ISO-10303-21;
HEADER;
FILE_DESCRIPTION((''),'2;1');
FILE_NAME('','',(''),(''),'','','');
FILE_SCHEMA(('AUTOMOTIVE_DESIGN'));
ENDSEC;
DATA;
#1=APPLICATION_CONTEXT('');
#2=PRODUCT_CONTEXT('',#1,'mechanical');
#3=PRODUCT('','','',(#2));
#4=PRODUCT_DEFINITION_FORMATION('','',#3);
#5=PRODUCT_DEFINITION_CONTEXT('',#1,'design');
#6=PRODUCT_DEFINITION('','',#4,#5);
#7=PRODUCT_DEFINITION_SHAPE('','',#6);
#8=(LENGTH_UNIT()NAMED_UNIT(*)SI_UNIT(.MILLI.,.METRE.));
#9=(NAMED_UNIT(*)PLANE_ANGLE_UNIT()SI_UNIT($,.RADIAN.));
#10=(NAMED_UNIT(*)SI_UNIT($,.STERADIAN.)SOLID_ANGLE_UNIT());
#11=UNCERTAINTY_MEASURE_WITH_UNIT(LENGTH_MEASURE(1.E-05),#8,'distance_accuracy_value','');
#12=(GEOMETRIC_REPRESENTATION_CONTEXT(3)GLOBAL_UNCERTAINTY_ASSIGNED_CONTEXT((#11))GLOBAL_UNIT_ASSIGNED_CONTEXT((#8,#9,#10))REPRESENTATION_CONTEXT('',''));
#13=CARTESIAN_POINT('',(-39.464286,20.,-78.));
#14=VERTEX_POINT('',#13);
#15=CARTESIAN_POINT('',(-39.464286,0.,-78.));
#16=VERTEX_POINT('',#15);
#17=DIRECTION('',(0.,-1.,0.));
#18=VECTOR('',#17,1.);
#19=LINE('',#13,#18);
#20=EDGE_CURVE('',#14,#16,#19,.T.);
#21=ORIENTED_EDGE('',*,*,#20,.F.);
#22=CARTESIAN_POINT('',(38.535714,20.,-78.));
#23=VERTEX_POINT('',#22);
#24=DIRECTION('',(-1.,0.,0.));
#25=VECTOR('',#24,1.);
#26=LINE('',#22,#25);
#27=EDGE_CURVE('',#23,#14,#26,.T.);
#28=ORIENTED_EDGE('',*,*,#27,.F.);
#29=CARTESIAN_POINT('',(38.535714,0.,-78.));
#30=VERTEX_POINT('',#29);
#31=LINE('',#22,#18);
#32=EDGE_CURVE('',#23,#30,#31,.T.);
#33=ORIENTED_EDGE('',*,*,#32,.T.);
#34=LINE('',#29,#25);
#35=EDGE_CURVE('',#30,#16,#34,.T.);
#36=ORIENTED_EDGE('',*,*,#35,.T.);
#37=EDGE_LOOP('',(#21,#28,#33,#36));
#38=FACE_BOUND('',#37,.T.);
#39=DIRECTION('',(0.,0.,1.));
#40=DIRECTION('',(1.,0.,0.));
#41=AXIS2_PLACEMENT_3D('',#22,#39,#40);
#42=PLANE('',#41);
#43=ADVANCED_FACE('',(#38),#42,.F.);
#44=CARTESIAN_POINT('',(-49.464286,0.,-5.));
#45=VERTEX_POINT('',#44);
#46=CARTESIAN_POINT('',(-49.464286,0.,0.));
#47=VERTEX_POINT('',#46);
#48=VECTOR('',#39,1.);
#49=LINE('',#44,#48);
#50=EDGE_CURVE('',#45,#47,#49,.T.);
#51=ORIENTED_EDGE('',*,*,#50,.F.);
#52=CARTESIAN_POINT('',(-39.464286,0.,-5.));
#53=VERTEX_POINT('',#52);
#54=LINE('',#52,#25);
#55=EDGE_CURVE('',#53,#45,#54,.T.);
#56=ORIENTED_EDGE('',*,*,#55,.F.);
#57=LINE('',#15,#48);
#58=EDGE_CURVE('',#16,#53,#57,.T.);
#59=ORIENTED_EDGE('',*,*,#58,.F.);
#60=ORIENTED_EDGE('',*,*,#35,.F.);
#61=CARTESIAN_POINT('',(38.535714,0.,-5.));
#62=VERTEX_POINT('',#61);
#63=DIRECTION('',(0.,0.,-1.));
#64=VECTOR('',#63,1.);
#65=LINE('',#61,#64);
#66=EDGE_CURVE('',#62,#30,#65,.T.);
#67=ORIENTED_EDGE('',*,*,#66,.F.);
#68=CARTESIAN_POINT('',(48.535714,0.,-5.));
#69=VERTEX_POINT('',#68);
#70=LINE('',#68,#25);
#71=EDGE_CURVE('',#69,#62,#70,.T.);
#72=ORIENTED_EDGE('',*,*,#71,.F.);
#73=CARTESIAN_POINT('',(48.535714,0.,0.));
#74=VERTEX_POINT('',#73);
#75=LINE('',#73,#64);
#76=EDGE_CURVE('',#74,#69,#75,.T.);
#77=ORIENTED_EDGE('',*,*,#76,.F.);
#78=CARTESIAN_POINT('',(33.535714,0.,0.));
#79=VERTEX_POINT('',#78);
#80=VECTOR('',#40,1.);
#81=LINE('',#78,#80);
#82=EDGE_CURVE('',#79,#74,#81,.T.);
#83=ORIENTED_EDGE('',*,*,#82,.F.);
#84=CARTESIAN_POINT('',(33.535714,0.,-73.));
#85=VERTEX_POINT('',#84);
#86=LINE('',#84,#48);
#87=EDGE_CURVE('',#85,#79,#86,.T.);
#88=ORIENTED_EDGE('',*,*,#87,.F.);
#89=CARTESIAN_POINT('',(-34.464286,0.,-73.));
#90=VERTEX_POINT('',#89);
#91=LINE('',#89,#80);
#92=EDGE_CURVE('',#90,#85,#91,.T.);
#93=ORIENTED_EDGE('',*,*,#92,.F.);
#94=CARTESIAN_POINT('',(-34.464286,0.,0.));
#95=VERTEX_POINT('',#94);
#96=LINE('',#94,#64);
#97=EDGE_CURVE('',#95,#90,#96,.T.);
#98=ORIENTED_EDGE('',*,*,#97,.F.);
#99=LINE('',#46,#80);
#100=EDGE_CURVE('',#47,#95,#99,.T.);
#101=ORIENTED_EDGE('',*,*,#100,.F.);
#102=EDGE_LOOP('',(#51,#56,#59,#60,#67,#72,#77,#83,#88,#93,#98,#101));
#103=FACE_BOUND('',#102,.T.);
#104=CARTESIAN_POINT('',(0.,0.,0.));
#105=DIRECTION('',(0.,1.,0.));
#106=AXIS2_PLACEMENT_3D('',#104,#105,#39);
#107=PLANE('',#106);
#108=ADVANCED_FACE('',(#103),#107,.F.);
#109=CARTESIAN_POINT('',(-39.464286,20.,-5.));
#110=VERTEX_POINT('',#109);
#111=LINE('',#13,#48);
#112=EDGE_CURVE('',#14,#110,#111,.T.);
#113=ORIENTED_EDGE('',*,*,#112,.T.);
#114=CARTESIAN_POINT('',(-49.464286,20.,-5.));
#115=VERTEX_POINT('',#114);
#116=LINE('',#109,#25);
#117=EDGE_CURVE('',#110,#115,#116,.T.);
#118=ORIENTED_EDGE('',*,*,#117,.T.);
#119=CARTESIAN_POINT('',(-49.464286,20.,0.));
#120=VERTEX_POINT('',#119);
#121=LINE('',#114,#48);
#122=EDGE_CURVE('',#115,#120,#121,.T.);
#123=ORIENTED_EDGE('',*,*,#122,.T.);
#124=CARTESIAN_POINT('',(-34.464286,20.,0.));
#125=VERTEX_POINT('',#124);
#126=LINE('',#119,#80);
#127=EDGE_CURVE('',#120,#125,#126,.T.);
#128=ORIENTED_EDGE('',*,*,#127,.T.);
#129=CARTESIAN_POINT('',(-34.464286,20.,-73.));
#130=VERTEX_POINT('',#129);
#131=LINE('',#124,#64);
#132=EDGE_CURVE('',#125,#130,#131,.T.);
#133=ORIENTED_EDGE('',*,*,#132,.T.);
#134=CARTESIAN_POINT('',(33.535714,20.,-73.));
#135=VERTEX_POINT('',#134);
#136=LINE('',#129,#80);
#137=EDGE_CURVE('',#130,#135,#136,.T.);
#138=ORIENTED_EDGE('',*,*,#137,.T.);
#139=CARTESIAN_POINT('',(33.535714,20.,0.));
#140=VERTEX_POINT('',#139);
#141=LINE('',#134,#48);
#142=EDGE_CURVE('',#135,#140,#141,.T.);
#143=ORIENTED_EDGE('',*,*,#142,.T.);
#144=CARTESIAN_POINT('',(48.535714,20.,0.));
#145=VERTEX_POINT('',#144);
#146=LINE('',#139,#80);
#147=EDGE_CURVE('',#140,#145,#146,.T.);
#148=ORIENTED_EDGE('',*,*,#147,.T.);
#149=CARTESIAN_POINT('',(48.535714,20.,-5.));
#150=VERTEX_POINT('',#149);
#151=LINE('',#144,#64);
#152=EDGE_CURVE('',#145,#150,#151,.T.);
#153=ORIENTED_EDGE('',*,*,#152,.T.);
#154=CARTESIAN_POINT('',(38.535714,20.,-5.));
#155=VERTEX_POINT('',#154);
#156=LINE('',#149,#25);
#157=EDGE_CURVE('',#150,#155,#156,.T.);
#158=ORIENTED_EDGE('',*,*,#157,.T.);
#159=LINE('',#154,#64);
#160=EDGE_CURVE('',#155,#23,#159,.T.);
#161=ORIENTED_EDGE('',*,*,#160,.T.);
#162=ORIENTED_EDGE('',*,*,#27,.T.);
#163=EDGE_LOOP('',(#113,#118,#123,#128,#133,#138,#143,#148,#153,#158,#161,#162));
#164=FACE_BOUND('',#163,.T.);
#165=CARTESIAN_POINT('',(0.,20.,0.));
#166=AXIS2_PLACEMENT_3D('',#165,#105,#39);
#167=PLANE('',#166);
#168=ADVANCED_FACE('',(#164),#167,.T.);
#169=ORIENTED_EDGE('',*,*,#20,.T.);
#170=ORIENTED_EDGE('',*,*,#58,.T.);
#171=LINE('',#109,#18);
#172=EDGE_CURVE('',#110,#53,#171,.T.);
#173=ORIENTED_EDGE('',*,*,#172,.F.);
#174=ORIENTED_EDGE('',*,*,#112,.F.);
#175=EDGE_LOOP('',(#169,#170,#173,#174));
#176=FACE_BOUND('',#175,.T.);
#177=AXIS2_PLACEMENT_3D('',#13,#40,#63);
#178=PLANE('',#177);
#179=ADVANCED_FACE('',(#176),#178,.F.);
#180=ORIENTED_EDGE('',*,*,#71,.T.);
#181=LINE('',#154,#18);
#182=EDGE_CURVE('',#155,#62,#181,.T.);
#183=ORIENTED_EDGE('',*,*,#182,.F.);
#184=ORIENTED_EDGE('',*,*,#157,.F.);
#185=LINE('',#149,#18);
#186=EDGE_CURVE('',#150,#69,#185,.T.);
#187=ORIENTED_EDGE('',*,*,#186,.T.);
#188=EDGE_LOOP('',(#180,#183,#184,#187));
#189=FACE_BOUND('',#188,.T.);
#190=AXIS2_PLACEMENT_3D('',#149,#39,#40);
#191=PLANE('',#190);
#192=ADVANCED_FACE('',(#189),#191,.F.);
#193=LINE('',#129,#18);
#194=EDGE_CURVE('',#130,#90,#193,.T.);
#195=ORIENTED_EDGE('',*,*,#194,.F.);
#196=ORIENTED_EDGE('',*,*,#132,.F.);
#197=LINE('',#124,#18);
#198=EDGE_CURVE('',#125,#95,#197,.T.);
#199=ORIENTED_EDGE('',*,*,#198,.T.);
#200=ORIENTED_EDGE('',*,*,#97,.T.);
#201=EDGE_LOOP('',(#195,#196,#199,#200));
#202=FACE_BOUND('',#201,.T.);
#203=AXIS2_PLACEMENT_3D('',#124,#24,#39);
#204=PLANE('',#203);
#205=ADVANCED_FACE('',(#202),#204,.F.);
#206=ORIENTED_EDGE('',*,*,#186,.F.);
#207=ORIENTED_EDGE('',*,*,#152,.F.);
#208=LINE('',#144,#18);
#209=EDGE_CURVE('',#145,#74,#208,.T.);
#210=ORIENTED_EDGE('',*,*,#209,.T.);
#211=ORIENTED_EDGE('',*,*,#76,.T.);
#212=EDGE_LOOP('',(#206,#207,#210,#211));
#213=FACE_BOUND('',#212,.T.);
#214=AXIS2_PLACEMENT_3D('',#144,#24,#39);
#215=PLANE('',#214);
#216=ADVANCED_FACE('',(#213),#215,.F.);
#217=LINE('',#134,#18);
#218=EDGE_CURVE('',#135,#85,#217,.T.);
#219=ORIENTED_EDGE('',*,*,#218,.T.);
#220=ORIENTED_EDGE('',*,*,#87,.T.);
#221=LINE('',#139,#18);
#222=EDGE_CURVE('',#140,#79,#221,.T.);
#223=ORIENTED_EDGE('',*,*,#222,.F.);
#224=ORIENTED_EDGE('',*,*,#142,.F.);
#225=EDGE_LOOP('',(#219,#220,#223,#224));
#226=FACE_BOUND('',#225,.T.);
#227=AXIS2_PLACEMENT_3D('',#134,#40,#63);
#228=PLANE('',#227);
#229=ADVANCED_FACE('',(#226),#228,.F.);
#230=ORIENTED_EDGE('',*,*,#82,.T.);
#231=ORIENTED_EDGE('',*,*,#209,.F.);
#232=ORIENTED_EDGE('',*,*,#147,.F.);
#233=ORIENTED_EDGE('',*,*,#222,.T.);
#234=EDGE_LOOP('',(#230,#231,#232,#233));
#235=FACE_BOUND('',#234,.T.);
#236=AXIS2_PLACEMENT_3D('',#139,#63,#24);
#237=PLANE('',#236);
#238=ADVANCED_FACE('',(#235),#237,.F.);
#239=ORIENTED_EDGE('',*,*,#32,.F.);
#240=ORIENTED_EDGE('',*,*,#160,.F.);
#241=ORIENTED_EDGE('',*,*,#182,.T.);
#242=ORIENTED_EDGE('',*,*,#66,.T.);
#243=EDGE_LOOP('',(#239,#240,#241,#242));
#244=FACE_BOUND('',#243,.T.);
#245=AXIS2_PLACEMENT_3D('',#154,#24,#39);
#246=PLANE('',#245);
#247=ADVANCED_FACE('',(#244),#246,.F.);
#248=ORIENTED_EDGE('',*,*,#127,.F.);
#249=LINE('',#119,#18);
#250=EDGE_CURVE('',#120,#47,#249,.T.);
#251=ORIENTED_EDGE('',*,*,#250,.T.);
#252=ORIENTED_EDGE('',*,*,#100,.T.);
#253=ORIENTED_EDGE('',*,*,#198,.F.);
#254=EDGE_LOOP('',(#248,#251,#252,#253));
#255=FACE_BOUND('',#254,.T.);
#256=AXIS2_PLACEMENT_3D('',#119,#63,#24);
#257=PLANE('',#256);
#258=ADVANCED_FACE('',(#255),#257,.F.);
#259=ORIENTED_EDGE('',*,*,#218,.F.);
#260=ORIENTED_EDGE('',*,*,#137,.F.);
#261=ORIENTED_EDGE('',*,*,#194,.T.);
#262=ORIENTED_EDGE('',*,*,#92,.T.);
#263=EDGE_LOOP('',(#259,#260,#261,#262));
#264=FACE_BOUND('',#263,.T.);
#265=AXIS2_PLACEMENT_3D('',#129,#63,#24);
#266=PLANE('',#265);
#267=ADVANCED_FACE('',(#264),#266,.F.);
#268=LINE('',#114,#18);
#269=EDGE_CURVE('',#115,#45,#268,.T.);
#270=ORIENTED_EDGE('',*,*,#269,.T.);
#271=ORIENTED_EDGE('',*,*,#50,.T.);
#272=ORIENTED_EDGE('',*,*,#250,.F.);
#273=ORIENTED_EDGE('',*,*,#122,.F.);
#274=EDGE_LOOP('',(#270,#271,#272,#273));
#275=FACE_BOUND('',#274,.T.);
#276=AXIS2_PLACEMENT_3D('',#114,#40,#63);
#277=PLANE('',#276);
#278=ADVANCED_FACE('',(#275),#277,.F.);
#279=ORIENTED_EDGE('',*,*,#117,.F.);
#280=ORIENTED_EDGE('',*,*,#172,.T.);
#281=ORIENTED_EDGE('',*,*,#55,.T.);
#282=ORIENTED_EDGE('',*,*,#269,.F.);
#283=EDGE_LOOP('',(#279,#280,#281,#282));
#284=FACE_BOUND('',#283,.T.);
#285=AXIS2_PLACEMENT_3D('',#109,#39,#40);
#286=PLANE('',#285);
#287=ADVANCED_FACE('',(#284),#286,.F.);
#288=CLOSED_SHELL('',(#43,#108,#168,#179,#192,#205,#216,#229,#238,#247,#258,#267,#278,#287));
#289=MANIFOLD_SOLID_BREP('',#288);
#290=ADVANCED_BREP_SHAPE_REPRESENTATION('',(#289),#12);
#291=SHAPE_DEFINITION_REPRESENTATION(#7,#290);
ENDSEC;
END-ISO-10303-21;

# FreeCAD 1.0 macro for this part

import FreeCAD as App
import Part
import Sketcher
from FreeCAD import Vector
Q = App.Units.Quantity


def add_polygon(sketch, points):
    """Adds a closed chain of lines whose ends are joined by coincident constraints."""
    first, n = sketch.GeometryCount, len(points)
    for a, b in zip(points, points[1:] + points[:1]):
        sketch.addGeometry(Part.LineSegment(App.Vector(*a, 0), App.Vector(*b, 0)), False)
    for i in range(n):
        sketch.addConstraint(Sketcher.Constraint("Coincident", first + i, 2, first + (i + 1) % n, 1))

doc = App.newDocument("Part")
body = doc.addObject("PartDesign::Body", "Body")

sketch1 = body.newObject("Sketcher::SketchObject", "Sketch")
sketch1.AttachmentSupport = (doc.getObject("XZ_Plane"), [""])
sketch1.MapMode = "FlatFace"
add_polygon(sketch1, [(-49, 0), (-34, 0), (-34, -73), (34, -73), (34, 0), (49, 0), (49, -5), (39, -5), (39, -78), (-39, -78), (-39, -5), (-49, -5)])
sketch1.addConstraint([
    Sketcher.Constraint("Horizontal", 0),
    Sketcher.Constraint("Vertical", 1),
    Sketcher.Constraint("Horizontal", 2),
    Sketcher.Constraint("Vertical", 3),
    Sketcher.Constraint("Horizontal", 4),
    Sketcher.Constraint("Vertical", 5),
    Sketcher.Constraint("Horizontal", 6),
    Sketcher.Constraint("Vertical", 7),
    Sketcher.Constraint("Horizontal", 8),
    Sketcher.Constraint("Vertical", 9),
    Sketcher.Constraint("Horizontal", 10),
    Sketcher.Constraint("Vertical", 11),
    Sketcher.Constraint("PointOnObject", 0, 2, -1),
    Sketcher.Constraint("PointOnObject", 3, 2, -1),
    Sketcher.Constraint("Horizontal", 6, 2, 9, 2),
    Sketcher.Constraint("Equal", 0, 4),
    Sketcher.Constraint("Equal", 6, 10),
    Sketcher.Constraint("Equal", 3, 7),
    Sketcher.Constraint("DistanceX", 0, 1, 0, 2, Q("15 mm")),
    Sketcher.Constraint("DistanceX", 2, 1, 2, 2, Q("68 mm")),
    Sketcher.Constraint("DistanceX", 6, 2, 6, 1, Q("10 mm")),
    Sketcher.Constraint("DistanceY", 1, 2, 1, 1, Q("73 mm")),
    Sketcher.Constraint("DistanceY", 5, 2, 5, 1, Q("5 mm")),
    Sketcher.Constraint("DistanceX", 0, 2, -1, 1, Q("34.464286 mm")),
])
pad1 = body.newObject("PartDesign::Pad", "Pad")
pad1.Profile = sketch1
pad1.Length = 20
pad1.Reversed = True

doc.recompute()
